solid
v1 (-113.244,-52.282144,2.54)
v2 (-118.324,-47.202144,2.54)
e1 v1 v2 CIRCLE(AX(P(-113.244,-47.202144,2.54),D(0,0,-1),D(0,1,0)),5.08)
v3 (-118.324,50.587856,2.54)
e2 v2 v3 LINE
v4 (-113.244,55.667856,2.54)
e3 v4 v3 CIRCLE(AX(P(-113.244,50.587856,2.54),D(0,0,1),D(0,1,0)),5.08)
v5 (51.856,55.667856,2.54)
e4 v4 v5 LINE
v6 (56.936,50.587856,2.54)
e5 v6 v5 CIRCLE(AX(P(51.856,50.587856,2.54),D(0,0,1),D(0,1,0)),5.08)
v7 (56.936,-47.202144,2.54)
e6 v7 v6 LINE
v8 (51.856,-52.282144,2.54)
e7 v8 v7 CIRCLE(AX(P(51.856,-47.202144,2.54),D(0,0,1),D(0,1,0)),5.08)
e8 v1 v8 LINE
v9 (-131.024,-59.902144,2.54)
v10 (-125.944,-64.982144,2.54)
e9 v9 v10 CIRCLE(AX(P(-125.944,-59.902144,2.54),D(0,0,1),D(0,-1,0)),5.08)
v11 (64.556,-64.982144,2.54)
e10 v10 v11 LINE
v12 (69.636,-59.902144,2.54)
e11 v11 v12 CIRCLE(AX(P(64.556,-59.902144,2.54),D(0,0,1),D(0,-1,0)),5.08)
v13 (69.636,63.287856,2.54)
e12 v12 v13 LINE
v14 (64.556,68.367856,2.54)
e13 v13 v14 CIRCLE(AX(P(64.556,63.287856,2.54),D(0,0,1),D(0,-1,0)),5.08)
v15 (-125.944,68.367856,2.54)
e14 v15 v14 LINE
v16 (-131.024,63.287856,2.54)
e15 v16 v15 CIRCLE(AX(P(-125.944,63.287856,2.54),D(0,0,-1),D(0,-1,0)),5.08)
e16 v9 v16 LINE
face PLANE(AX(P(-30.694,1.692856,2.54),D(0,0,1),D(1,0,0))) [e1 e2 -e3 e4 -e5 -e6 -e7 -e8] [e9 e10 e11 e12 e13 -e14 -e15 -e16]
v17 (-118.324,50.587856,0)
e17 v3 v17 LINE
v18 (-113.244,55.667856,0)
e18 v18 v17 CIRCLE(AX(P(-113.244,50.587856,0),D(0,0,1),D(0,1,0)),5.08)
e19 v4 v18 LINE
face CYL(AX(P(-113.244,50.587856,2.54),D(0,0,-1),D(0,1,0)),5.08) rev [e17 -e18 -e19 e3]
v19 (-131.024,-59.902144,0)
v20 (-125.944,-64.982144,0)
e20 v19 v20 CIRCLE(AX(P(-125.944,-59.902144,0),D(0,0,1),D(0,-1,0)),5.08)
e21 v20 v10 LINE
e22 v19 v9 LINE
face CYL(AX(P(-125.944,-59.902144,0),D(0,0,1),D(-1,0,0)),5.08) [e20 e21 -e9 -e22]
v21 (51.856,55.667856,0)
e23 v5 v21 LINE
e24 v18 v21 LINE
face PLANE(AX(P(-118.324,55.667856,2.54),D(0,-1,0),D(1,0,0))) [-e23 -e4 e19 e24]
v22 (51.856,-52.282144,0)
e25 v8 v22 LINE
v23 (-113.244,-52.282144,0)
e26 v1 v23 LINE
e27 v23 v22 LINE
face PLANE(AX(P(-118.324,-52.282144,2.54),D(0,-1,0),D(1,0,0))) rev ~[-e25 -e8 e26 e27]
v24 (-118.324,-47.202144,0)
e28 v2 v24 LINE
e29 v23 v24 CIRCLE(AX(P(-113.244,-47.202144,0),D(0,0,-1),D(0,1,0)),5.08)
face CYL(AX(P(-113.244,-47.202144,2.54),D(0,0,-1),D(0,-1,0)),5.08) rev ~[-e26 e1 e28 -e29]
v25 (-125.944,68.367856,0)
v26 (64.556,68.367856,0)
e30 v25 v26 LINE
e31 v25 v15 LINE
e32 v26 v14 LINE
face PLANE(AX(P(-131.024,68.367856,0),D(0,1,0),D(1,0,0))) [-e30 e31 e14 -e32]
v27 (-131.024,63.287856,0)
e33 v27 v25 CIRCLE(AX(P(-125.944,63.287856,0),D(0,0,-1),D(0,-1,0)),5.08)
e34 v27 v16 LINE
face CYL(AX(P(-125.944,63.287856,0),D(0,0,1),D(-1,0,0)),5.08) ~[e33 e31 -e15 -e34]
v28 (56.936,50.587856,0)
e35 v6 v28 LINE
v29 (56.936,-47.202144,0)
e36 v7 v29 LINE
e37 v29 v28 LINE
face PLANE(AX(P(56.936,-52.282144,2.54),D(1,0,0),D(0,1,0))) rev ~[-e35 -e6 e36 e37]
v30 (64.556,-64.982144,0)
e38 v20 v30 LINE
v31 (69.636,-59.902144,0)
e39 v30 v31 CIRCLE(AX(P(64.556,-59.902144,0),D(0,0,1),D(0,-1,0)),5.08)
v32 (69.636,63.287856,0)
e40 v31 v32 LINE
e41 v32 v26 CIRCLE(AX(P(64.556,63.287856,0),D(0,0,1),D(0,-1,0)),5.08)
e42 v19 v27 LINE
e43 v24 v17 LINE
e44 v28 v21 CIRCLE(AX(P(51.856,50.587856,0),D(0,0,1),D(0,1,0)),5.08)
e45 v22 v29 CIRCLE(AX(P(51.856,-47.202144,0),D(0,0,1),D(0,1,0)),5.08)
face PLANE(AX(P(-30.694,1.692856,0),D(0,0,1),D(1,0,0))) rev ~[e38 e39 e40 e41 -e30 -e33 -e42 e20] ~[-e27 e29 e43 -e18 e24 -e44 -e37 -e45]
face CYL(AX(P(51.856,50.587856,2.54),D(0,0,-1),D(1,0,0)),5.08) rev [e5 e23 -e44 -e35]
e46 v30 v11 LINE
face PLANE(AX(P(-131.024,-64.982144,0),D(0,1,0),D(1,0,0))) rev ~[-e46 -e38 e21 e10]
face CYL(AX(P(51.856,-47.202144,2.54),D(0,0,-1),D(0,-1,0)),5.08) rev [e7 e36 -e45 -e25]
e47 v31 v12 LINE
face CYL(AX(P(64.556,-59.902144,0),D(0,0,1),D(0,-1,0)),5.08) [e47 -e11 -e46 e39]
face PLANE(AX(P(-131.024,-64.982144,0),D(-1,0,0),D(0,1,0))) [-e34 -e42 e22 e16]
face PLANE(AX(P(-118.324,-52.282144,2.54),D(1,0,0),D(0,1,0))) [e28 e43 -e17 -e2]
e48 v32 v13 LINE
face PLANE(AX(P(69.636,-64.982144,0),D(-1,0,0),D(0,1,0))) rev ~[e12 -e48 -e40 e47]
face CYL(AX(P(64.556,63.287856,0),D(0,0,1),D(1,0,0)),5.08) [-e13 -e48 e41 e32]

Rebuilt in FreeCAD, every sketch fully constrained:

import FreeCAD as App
import Part
import Sketcher

V = App.Vector
Q = App.Units.Quantity


def edges_at(feature, points):
    """Names of the edges that pass closest to the given points."""
    edges = feature.Shape.Edges
    near = lambda p: min(range(len(edges)), key=lambda i: edges[i].distToShape(Part.Vertex(*p))[0])
    return sorted({f"Edge{near(p) + 1}" for p in points})

doc = App.newDocument("Part")
body = doc.addObject("PartDesign::Body", "Body")

sketch1 = body.newObject("Sketcher::SketchObject", "Sketch")
sketch1.AttachmentSupport = (doc.getObject("XY_Plane"), [""])
sketch1.MapMode = "FlatFace"
sketch1.addGeometry(Part.LineSegment(V(-131, 68, 0), V(-131, -65, 0)), False)
sketch1.addGeometry(Part.LineSegment(V(-131, -65, 0), V(70, -65, 0)), False)
sketch1.addGeometry(Part.LineSegment(V(70, -65, 0), V(70, 68, 0)), False)
sketch1.addGeometry(Part.LineSegment(V(70, 68, 0), V(-131, 68, 0)), False)
sketch1.addConstraint(Sketcher.Constraint("Coincident", 0, 2, 1, 1))
sketch1.addConstraint(Sketcher.Constraint("Coincident", 1, 2, 2, 1))
sketch1.addConstraint(Sketcher.Constraint("Coincident", 2, 2, 3, 1))
sketch1.addConstraint(Sketcher.Constraint("Coincident", 3, 2, 0, 1))
sketch1.addConstraint(Sketcher.Constraint("Vertical", 0))
sketch1.addConstraint(Sketcher.Constraint("Horizontal", 1))
sketch1.addConstraint(Sketcher.Constraint("Vertical", 2))
sketch1.addConstraint(Sketcher.Constraint("Horizontal", 3))
sketch1.addConstraint(Sketcher.Constraint("DistanceX", 1, 1, 1, 2, Q("7.9 in")))
sketch1.addConstraint(Sketcher.Constraint("DistanceY", 0, 2, 0, 1, Q("5.25 in")))
sketch1.addConstraint(Sketcher.Constraint("DistanceX", 0, 2, -1, 1, 131.024))
sketch1.addConstraint(Sketcher.Constraint("DistanceY", 0, 2, -1, 1, 64.982144))
pad1 = body.newObject("PartDesign::Pad", "Pad")
pad1.Profile = sketch1
pad1.Length = Q("0.1 in")
doc.recompute()

fillet = body.newObject("PartDesign::Fillet", "Fillet")
fillet.Base = (pad1, edges_at(pad1, [
    (69.636, -64.982, 1.27),
    (69.636, 68.368, 1.27),
    (-131.024, -64.982, 1.27),
    (-131.024, 68.368, 1.27),
]))
fillet.Radius = Q("0.2 in")

sketch2 = body.newObject("Sketcher::SketchObject", "Sketch001")
sketch2.AttachmentSupport = (doc.getObject("XY_Plane"), [""])
sketch2.MapMode = "FlatFace"
sketch2.AttachmentOffset = App.Placement(V(0, 0, 0.1 * 25.4), App.Rotation())
sketch2.addGeometry(Part.LineSegment(V(-118, 56, 0), V(-118, -52, 0)), False)
sketch2.addGeometry(Part.LineSegment(V(-118, -52, 0), V(57, -52, 0)), False)
sketch2.addGeometry(Part.LineSegment(V(57, -52, 0), V(57, 56, 0)), False)
sketch2.addGeometry(Part.LineSegment(V(57, 56, 0), V(-118, 56, 0)), False)
sketch2.addConstraint(Sketcher.Constraint("Coincident", 0, 2, 1, 1))
sketch2.addConstraint(Sketcher.Constraint("Coincident", 1, 2, 2, 1))
sketch2.addConstraint(Sketcher.Constraint("Coincident", 2, 2, 3, 1))
sketch2.addConstraint(Sketcher.Constraint("Coincident", 3, 2, 0, 1))
sketch2.addConstraint(Sketcher.Constraint("Vertical", 0))
sketch2.addConstraint(Sketcher.Constraint("Horizontal", 1))
sketch2.addConstraint(Sketcher.Constraint("Vertical", 2))
sketch2.addConstraint(Sketcher.Constraint("Horizontal", 3))
sketch2.addConstraint(Sketcher.Constraint("DistanceX", 1, 1, 1, 2, Q("6.9 in")))
sketch2.addConstraint(Sketcher.Constraint("DistanceY", 0, 2, 0, 1, Q("4.25 in")))
sketch2.addConstraint(Sketcher.Constraint("DistanceX", 0, 2, -1, 1, 118.324))
sketch2.addConstraint(Sketcher.Constraint("DistanceY", 0, 2, -1, 1, 52.282144))
pocket1 = body.newObject("PartDesign::Pocket", "Pocket")
pocket1.Profile = sketch2
pocket1.Length = Q("0.2 in")
doc.recompute()

fillet2 = body.newObject("PartDesign::Fillet", "Fillet001")
fillet2.Base = (pocket1, edges_at(pocket1, [
    (-118.324, -52.282, 1.27),
    (56.936, -52.282, 1.27),
    (56.936, 55.668, 1.27),
    (-118.324, 55.668, 1.27),
]))
fillet2.Radius = Q("0.2 in")

doc.recompute()
